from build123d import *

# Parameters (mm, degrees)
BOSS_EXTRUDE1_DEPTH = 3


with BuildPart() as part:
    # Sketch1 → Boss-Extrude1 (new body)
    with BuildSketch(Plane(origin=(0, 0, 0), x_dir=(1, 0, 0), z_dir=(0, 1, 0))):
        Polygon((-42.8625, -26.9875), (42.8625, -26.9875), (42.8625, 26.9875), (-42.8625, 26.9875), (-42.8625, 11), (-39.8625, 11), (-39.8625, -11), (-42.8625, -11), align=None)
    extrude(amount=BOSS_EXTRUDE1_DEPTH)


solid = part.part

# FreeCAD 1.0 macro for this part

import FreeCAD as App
import Part
import Sketcher

V = App.Vector
Q = App.Units.Quantity


def add_polygon(sketch, points):
    """Adds a closed chain of lines whose ends are joined by coincident constraints."""
    first, n = sketch.GeometryCount, len(points)
    for a, b in zip(points, points[1:] + points[:1]):
        sketch.addGeometry(Part.LineSegment(App.Vector(*a, 0), App.Vector(*b, 0)), False)
    for i in range(n):
        sketch.addConstraint(Sketcher.Constraint("Coincident", first + i, 2, first + (i + 1) % n, 1))

doc = App.newDocument("Part")
body = doc.addObject("PartDesign::Body", "Body")

# Sketch on XZ plane
sketch1 = body.newObject("Sketcher::SketchObject", "Sketch")
sketch1.AttachmentSupport = (doc.getObject("XZ_Plane"), [""])
sketch1.MapMode = "FlatFace"
add_polygon(sketch1, [(-42.8625, 26.9875), (42.8625, 26.9875), (42.8625, -26.9875), (-42.8625, -26.9875), (-42.8625, -11), (-39.8625, -11), (-39.8625, 11), (-42.8625, 11)])  # lines 0-7
sketch1.addConstraint([
    Sketcher.Constraint("Horizontal", 0),
    Sketcher.Constraint("Vertical", 1),
    Sketcher.Constraint("Horizontal", 2),
    Sketcher.Constraint("Vertical", 3),
    Sketcher.Constraint("Horizontal", 4),
    Sketcher.Constraint("Vertical", 5),
    Sketcher.Constraint("Horizontal", 6),
    Sketcher.Constraint("Vertical", 7),
    Sketcher.Constraint("Symmetric", 0, 2, 2, 2, -1, 1),
    Sketcher.Constraint("Symmetric", 3, 2, 6, 2, -1),
    Sketcher.Constraint("DistanceX", 4, 1, 4, 2, Q("3 mm")),
    Sketcher.Constraint("DistanceY", 5, 1, 5, 2, Q("22 mm")),
    Sketcher.Constraint("DistanceX", 0, 1, 0, 2, Q("85.725 mm")),
    Sketcher.Constraint("DistanceY", 1, 2, 1, 1, Q("53.975 mm")),
])
pad1 = body.newObject("PartDesign::Pad", "Pad")
pad1.Profile = sketch1
pad1.Length = 3
pad1.Reversed = True

doc.recompute()
